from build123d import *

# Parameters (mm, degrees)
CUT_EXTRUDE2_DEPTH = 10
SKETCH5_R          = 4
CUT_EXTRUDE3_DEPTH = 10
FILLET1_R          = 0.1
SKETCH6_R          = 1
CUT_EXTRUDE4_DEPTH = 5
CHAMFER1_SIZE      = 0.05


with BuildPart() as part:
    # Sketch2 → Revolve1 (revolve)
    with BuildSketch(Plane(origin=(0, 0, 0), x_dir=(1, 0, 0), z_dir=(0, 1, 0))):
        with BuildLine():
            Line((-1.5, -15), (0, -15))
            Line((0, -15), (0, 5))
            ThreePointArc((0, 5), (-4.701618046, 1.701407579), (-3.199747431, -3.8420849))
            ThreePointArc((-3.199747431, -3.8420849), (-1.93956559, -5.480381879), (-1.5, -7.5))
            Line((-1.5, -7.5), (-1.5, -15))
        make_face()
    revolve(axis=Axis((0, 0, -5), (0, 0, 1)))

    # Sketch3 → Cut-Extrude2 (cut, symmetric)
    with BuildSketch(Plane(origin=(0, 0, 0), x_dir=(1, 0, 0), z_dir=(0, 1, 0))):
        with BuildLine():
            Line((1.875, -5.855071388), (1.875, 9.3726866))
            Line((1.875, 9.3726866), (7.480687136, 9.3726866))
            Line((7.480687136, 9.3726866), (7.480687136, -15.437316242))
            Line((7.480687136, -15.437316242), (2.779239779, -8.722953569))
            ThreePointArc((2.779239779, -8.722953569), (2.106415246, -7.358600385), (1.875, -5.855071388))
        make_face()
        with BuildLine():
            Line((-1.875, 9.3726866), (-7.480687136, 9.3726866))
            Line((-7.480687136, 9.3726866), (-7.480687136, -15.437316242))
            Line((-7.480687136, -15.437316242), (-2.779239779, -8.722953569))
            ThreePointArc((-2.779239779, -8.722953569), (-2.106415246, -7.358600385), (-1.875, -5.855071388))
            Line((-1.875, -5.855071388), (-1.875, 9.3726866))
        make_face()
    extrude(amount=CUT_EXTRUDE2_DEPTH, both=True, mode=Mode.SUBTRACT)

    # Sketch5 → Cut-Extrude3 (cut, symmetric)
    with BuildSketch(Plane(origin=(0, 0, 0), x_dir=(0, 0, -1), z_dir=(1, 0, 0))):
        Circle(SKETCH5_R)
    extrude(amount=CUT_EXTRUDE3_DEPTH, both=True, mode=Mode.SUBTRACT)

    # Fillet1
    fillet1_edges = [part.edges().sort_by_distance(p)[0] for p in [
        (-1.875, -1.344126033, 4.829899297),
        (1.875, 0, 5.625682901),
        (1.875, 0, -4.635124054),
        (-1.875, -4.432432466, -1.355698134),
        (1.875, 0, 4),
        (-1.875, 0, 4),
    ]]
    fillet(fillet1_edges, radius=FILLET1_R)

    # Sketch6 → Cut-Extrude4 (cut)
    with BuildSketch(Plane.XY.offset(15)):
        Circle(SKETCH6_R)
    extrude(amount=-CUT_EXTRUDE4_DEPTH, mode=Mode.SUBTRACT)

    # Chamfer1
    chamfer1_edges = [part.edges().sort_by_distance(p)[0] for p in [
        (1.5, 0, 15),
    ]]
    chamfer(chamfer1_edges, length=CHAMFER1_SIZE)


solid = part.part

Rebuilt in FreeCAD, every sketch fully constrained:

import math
import FreeCAD as App
import Part
import Sketcher
Q = App.Units.Quantity


def edges_at(feature, points):
    """Names of the edges that pass closest to the given points."""
    edges = feature.Shape.Edges
    near = lambda p: min(range(len(edges)), key=lambda i: edges[i].distToShape(Part.Vertex(*p))[0])
    return sorted({f"Edge{near(p) + 1}" for p in points})

doc = App.newDocument("Part")
body = doc.addObject("PartDesign::Body", "Body")

# Sketch on XZ plane
sketch1 = doc.addObject("Sketcher::SketchObject", "Sketch")
body.addObject(sketch1)
sketch1.AttachmentSupport = (doc.XZ_Plane, [""])
sketch1.MapMode = "FlatFace"
sketch1.addGeometry([
    Part.LineSegment(App.Vector(-1.5, 15, 0), App.Vector(0, 15, 0)),  # 0
    Part.LineSegment(App.Vector(0, 15, 0), App.Vector(0, -5, 0)),  # 1
    Part.ArcOfCircle(Part.Circle(App.Vector(0, 0, 0), App.Vector(0, 0, 1), 5), math.radians(130), math.radians(270)),  # 2
    Part.ArcOfCircle(Part.Circle(App.Vector(-6.2, 7.5, 0), App.Vector(0, 0, 1), 4.7), math.radians(-50), math.radians(0)),  # 3
    Part.LineSegment(App.Vector(-1.5, 7.5, 0), App.Vector(-1.5, 15, 0)),  # 4
], False)
sketch1.addConstraint([
    Sketcher.Constraint("Coincident", 0, 2, 1, 1),
    Sketcher.Constraint("Coincident", 1, 2, 2, 2),
    Sketcher.Constraint("Tangent", 2, 1, 3, 1),
    Sketcher.Constraint("Coincident", 3, 2, 4, 1),
    Sketcher.Constraint("Coincident", 4, 2, 0, 1),
    Sketcher.Constraint("Horizontal", 0),
    Sketcher.Constraint("Vertical", 1),
    Sketcher.Constraint("Vertical", 4),
    Sketcher.Constraint("Coincident", 2, 3, -1, 1),
    Sketcher.Constraint("PointOnObject", 0, 2, -2),
    Sketcher.Constraint("Radius", 2, 5.0),
    Sketcher.Constraint("DistanceY", 1, 2, 1, 1, 20.0),
    Sketcher.Constraint("DistanceX", 0, 1, 0, 2, 1.5),
    Sketcher.Constraint("DistanceY", 4, 1, 4, 2, 7.5),
    Sketcher.Constraint("Radius", 3, 4.721125),
])
revolution = doc.addObject("PartDesign::Revolution", "Revolution")
body.addObject(revolution)
revolution.Profile = sketch1
revolution.ReferenceAxis = (sketch1, ["V_Axis"])
revolution.Angle = 360

# Sketch on XZ plane
sketch2 = doc.addObject("Sketcher::SketchObject", "Sketch001")
body.addObject(sketch2)
sketch2.AttachmentSupport = (doc.XZ_Plane, [""])
sketch2.MapMode = "FlatFace"
sketch2.addGeometry([
    Part.LineSegment(App.Vector(1.9, -9.4, 0), App.Vector(1.9, 5.9, 0)),  # 0
    Part.ArcOfCircle(Part.Circle(App.Vector(6.9, 5.9, 0), App.Vector(0, 0, 1), 5), math.radians(145), math.radians(180)),  # 1
    Part.LineSegment(App.Vector(2.8, 8.7, 0), App.Vector(7.5, 15.4, 0)),  # 2
    Part.LineSegment(App.Vector(7.5, 15.4, 0), App.Vector(7.5, -9.4, 0)),  # 3
    Part.LineSegment(App.Vector(7.5, -9.4, 0), App.Vector(1.9, -9.4, 0)),  # 4
    Part.LineSegment(App.Vector(-1.9, -9.4, 0), App.Vector(-7.5, -9.4, 0)),  # 5
    Part.LineSegment(App.Vector(-7.5, -9.4, 0), App.Vector(-7.5, 15.4, 0)),  # 6
    Part.LineSegment(App.Vector(-7.5, 15.4, 0), App.Vector(-2.8, 8.7, 0)),  # 7
    Part.ArcOfCircle(Part.Circle(App.Vector(-6.9, 5.9, 0), App.Vector(0, 0, 1), 5), math.radians(0), math.radians(35)),  # 8
    Part.LineSegment(App.Vector(-1.9, 5.9, 0), App.Vector(-1.9, -9.4, 0)),  # 9
], False)
sketch2.addConstraint([
    Sketcher.Constraint("Tangent", 0, 2, 1, 2),
    Sketcher.Constraint("Tangent", 1, 1, 2, 1),
    Sketcher.Constraint("Coincident", 2, 2, 3, 1),
    Sketcher.Constraint("Coincident", 3, 2, 4, 1),
    Sketcher.Constraint("Coincident", 4, 2, 0, 1),
    Sketcher.Constraint("Coincident", 5, 2, 6, 1),
    Sketcher.Constraint("Coincident", 6, 2, 7, 1),
    Sketcher.Constraint("Tangent", 7, 2, 8, 2),
    Sketcher.Constraint("Tangent", 8, 1, 9, 1),
    Sketcher.Constraint("Coincident", 9, 2, 5, 1),
    Sketcher.Constraint("Vertical", 0),
    Sketcher.Constraint("Vertical", 3),
    Sketcher.Constraint("Horizontal", 4),
    Sketcher.Constraint("Horizontal", 5),
    Sketcher.Constraint("Vertical", 6),
    Sketcher.Constraint("Vertical", 9),
    Sketcher.Constraint("Equal", 1, 8),
    Sketcher.Constraint("Symmetric", 1, 3, 8, 3, -2),
    Sketcher.Constraint("Symmetric", 3, 2, 5, 2, -2),
    Sketcher.Constraint("Horizontal", 2, 2, 6, 2),
    Sketcher.Constraint("Radius", 1, 5.0),
    Sketcher.Constraint("Angle", 2, Q("55 deg")),
    Sketcher.Constraint("DistanceX", 8, 3, 1, 3, 13.75),
    Sketcher.Constraint("DistanceX", 4, 2, 4, 1, 5.605687),
    Sketcher.Constraint("DistanceY", 0, 1, 0, 2, 15.227758),
    Sketcher.Constraint("DistanceY", -1, 1, 1, 3, 5.855071),
])
pocket1 = doc.addObject("PartDesign::Pocket", "Pocket")
body.addObject(pocket1)
pocket1.Profile = sketch2
pocket1.Length = 20
pocket1.Midplane = True

# Sketch on YZ plane
sketch3 = doc.addObject("Sketcher::SketchObject", "Sketch002")
body.addObject(sketch3)
sketch3.AttachmentSupport = (doc.YZ_Plane, [""])
sketch3.MapMode = "FlatFace"
sketch3.addGeometry(Part.Circle(App.Vector(0, 0, 0), App.Vector(0, 0, 1), 4), False)
sketch3.addConstraint([
    Sketcher.Constraint("Coincident", 0, 3, -1, 1),
    Sketcher.Constraint("Diameter", 0, 8.0),
])
pocket2 = doc.addObject("PartDesign::Pocket", "Pocket001")
body.addObject(pocket2)
pocket2.Profile = sketch3
pocket2.Length = 20
pocket2.Midplane = True
doc.recompute()

fillet = doc.addObject("PartDesign::Fillet", "Fillet")
body.addObject(fillet)
fillet.Base = (pocket2, edges_at(pocket2, [
    (-1.875, -1.344, 4.83),
    (1.875, 0, 5.626),
    (1.875, 0, -4.635),
    (-1.875, -4.432, -1.356),
    (1.875, 0, 4),
    (-1.875, 0, 4),
]))
fillet.Radius = 0.1

# Sketch on XY plane
sketch4 = doc.addObject("Sketcher::SketchObject", "Sketch003")
body.addObject(sketch4)
sketch4.AttachmentSupport = (doc.XY_Plane, [""])
sketch4.MapMode = "FlatFace"
sketch4.AttachmentOffset = App.Placement(App.Vector(0, 0, 15), App.Rotation())
sketch4.addGeometry(Part.Circle(App.Vector(0, 0, 0), App.Vector(0, 0, 1), 1), False)
sketch4.addConstraint([
    Sketcher.Constraint("Coincident", 0, 3, -1, 1),
    Sketcher.Constraint("Diameter", 0, 2.0),
])
pocket3 = doc.addObject("PartDesign::Pocket", "Pocket002")
body.addObject(pocket3)
pocket3.Profile = sketch4
pocket3.Length = 5
doc.recompute()

chamfer = doc.addObject("PartDesign::Chamfer", "Chamfer")
body.addObject(chamfer)
chamfer.Base = (pocket3, edges_at(pocket3, [(1.5, 0, 15)]))
chamfer.Size = 0.05

doc.recompute()
